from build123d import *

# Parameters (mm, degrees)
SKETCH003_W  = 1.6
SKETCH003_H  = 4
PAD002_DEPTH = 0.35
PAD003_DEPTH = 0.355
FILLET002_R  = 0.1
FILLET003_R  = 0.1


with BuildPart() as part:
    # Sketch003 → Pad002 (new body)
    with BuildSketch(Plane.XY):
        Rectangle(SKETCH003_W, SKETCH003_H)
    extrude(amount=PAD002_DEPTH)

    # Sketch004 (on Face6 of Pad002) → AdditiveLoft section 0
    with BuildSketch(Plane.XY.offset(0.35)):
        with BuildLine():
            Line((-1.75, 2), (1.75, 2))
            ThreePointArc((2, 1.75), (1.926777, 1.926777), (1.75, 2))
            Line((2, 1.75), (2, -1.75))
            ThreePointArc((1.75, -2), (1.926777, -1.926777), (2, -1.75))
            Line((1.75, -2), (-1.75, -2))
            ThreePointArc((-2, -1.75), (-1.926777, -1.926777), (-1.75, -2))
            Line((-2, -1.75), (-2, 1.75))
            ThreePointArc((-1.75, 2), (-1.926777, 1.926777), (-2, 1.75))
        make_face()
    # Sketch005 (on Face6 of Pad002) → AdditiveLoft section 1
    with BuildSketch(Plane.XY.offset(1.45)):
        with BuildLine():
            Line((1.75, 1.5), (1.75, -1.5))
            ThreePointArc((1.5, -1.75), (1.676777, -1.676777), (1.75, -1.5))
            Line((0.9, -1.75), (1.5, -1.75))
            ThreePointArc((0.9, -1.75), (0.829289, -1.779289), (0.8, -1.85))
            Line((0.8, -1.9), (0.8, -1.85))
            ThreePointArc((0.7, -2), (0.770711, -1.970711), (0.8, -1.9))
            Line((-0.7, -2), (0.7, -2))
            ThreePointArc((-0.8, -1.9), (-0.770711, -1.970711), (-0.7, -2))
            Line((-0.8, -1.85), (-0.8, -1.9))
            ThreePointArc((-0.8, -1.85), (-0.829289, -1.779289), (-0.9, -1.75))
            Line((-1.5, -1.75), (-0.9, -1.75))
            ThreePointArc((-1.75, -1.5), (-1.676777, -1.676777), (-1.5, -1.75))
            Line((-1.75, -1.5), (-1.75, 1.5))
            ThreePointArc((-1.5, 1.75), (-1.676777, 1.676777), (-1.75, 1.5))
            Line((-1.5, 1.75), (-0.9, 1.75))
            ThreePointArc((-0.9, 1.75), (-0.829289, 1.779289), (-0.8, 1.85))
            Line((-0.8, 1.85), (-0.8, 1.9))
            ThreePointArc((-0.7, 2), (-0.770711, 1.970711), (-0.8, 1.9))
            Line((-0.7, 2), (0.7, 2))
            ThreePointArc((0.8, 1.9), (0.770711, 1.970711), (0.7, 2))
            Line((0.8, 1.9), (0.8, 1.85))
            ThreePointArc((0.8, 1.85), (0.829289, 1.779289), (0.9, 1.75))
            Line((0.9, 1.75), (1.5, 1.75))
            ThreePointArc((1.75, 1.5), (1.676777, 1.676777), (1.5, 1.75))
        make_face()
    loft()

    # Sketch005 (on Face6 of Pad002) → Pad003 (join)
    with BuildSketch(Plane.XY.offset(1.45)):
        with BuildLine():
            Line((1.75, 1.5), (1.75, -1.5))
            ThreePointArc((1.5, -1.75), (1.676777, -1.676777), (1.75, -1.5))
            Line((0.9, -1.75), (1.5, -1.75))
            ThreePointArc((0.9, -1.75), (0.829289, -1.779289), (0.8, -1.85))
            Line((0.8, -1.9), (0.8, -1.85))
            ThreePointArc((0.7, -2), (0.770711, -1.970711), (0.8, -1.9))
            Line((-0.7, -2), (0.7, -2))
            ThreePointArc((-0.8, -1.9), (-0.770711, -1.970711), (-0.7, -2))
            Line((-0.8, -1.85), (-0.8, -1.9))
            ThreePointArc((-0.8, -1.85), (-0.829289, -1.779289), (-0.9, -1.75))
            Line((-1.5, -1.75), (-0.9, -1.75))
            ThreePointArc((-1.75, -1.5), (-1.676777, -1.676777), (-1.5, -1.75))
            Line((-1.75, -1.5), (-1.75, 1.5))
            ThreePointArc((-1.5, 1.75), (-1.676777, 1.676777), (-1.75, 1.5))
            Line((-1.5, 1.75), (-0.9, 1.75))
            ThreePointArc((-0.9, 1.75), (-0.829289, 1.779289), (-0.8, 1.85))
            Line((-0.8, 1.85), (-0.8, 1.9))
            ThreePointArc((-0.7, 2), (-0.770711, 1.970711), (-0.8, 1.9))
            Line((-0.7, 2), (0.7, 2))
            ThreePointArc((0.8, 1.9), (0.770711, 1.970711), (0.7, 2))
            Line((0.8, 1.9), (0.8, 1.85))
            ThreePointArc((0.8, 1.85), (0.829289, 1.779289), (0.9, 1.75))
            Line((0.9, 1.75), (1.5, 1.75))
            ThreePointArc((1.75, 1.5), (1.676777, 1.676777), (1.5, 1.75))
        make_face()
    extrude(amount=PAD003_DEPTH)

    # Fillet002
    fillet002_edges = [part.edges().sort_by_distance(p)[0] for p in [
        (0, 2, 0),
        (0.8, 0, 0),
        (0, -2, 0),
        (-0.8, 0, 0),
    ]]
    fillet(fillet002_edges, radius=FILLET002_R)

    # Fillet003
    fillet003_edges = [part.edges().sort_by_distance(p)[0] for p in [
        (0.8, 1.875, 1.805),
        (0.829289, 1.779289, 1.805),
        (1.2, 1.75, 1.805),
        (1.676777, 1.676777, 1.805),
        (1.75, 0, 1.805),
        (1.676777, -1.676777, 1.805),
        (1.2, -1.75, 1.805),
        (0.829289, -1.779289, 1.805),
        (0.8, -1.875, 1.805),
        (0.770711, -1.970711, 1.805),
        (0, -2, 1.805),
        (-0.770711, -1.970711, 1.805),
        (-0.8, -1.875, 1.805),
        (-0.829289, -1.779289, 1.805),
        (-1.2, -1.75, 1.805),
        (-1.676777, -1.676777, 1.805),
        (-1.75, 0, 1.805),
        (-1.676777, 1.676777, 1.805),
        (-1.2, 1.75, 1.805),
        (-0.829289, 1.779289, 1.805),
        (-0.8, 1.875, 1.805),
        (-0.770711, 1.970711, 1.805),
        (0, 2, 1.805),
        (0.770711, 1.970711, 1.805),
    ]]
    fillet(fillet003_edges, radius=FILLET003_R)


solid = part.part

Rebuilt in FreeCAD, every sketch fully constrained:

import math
import FreeCAD as App
import Part
import Sketcher

V = App.Vector
Q = App.Units.Quantity


def edges_at(feature, points):
    """Names of the edges that pass closest to the given points."""
    edges = feature.Shape.Edges
    near = lambda p: min(range(len(edges)), key=lambda i: edges[i].distToShape(Part.Vertex(*p))[0])
    return sorted({f"Edge{near(p) + 1}" for p in points})


def add_polygon(sketch, points):
    """Adds a closed chain of lines whose ends are joined by coincident constraints."""
    first, n = sketch.GeometryCount, len(points)
    for a, b in zip(points, points[1:] + points[:1]):
        sketch.addGeometry(Part.LineSegment(App.Vector(*a, 0), App.Vector(*b, 0)), False)
    for i in range(n):
        sketch.addConstraint(Sketcher.Constraint("Coincident", first + i, 2, first + (i + 1) % n, 1))

doc = App.newDocument("Part")
body = doc.addObject("PartDesign::Body", "Body")

sketch1 = body.newObject("Sketcher::SketchObject", "Sketch")
sketch1.AttachmentSupport = (doc.getObject("XY_Plane"), [""])
sketch1.MapMode = "FlatFace"
add_polygon(sketch1, [(-0.8, 2), (-0.8, -2), (0.8, -2), (0.8, 2)])
sketch1.addConstraint([
    Sketcher.Constraint("Vertical", 0),
    Sketcher.Constraint("Horizontal", 1),
    Sketcher.Constraint("Vertical", 2),
    Sketcher.Constraint("Horizontal", 3),
    Sketcher.Constraint("Symmetric", 0, 2, 2, 2, -1, 1),
    Sketcher.Constraint("DistanceY", 0, 2, 0, 1, Q("4 mm")),
    Sketcher.Constraint("DistanceX", 1, 1, 1, 2, Q("1.6 mm")),
])
pad1 = body.newObject("PartDesign::Pad", "Pad")
pad1.Profile = sketch1
pad1.Length = 0.35

sketch2 = body.newObject("Sketcher::SketchObject", "Sketch001")
sketch2.AttachmentSupport = (doc.getObject("XY_Plane"), [""])
sketch2.MapMode = "FlatFace"
sketch2.AttachmentOffset = App.Placement(V(0, 0, 0.35), App.Rotation())
sketch2.addGeometry([
    Part.LineSegment(V(1.75, 2, 0), V(-1.75, 2, 0)),
    Part.ArcOfCircle(Part.Circle(V(-1.75, 1.75, 0), V(0, 0, 1), 0.25), math.radians(90), math.radians(180)),
    Part.LineSegment(V(-2, 1.75, 0), V(-2, -1.75, 0)),
    Part.ArcOfCircle(Part.Circle(V(-1.75, -1.75, 0), V(0, 0, 1), 0.25), math.radians(180), math.radians(270)),
    Part.LineSegment(V(-1.75, -2, 0), V(1.75, -2, 0)),
    Part.ArcOfCircle(Part.Circle(V(1.75, -1.75, 0), V(0, 0, 1), 0.25), math.radians(-90), math.radians(0)),
    Part.LineSegment(V(2, -1.75, 0), V(2, 1.75, 0)),
    Part.ArcOfCircle(Part.Circle(V(1.75, 1.75, 0), V(0, 0, 1), 0.25), math.radians(0), math.radians(90)),
], False)
sketch2.addConstraint([
    Sketcher.Constraint("Coincident", 0, 2, 1, 1),
    Sketcher.Constraint("Coincident", 1, 2, 2, 1),
    Sketcher.Constraint("Coincident", 2, 2, 3, 1),
    Sketcher.Constraint("Coincident", 3, 2, 4, 1),
    Sketcher.Constraint("Coincident", 4, 2, 5, 1),
    Sketcher.Constraint("Coincident", 5, 2, 6, 1),
    Sketcher.Constraint("Coincident", 6, 2, 7, 1),
    Sketcher.Constraint("Coincident", 7, 2, 0, 1),
    Sketcher.Constraint("Horizontal", 0),
    Sketcher.Constraint("Vertical", 2),
    Sketcher.Constraint("Horizontal", 4),
    Sketcher.Constraint("Vertical", 6),
    Sketcher.Constraint("Equal", 1, 3),
    Sketcher.Constraint("Equal", 3, 5),
    Sketcher.Constraint("Equal", 5, 7),
    Sketcher.Constraint("Symmetric", 1, 3, 5, 3, -1, 1),
    Sketcher.Constraint("Horizontal", 7, 3, 1, 2),
    Sketcher.Constraint("Horizontal", 5, 3, 2, 2),
    Sketcher.Constraint("Horizontal", 2, 2, 5, 2),
    Sketcher.Constraint("Horizontal", 1, 2, 6, 2),
    Sketcher.Constraint("Vertical", 3, 3, 0, 2),
    Sketcher.Constraint("Vertical", 0, 2, 3, 2),
    Sketcher.Constraint("Vertical", 7, 3, 4, 2),
    Sketcher.Constraint("Vertical", 4, 2, 7, 2),
    Sketcher.Constraint("Equal", 4, 2),
    Sketcher.Constraint("Radius", 1, Q("0.249999 mm")),
    Sketcher.Constraint("DistanceX", 0, 2, 0, 1, Q("3.5 mm")),
])

sketch3 = body.newObject("Sketcher::SketchObject", "Sketch002")
sketch3.AttachmentSupport = (doc.getObject("XY_Plane"), [""])
sketch3.MapMode = "FlatFace"
sketch3.AttachmentOffset = App.Placement(V(0, 0, 1.45), App.Rotation())
sketch3.addGeometry([
    Part.LineSegment(V(1.75, -1.5, 0), V(1.75, 1.5, 0)),
    Part.ArcOfCircle(Part.Circle(V(1.5, 1.5, 0), V(0, 0, 1), 0.25), math.radians(0), math.radians(90)),
    Part.LineSegment(V(1.5, 1.75, 0), V(0.9, 1.75, 0)),
    Part.ArcOfCircle(Part.Circle(V(0.9, 1.85, 0), V(0, 0, 1), 0.1), math.radians(180), math.radians(270)),
    Part.LineSegment(V(0.8, 1.85, 0), V(0.8, 1.9, 0)),
    Part.ArcOfCircle(Part.Circle(V(0.7, 1.9, 0), V(0, 0, 1), 0.1), math.radians(0), math.radians(90)),
    Part.LineSegment(V(0.7, 2, 0), V(-0.7, 2, 0)),
    Part.ArcOfCircle(Part.Circle(V(-0.7, 1.9, 0), V(0, 0, 1), 0.1), math.radians(90), math.radians(180)),
    Part.LineSegment(V(-0.8, 1.9, 0), V(-0.8, 1.85, 0)),
    Part.ArcOfCircle(Part.Circle(V(-0.9, 1.85, 0), V(0, 0, 1), 0.1), math.radians(-90), math.radians(0)),
    Part.LineSegment(V(-0.9, 1.75, 0), V(-1.5, 1.75, 0)),
    Part.ArcOfCircle(Part.Circle(V(-1.5, 1.5, 0), V(0, 0, 1), 0.25), math.radians(90), math.radians(180)),
    Part.LineSegment(V(-1.75, 1.5, 0), V(-1.75, -1.5, 0)),
    Part.ArcOfCircle(Part.Circle(V(-1.5, -1.5, 0), V(0, 0, 1), 0.25), math.radians(180), math.radians(270)),
    Part.LineSegment(V(-1.5, -1.75, 0), V(-0.9, -1.75, 0)),
    Part.ArcOfCircle(Part.Circle(V(-0.9, -1.85, 0), V(0, 0, 1), 0.1), math.radians(0), math.radians(90)),
    Part.LineSegment(V(-0.8, -1.85, 0), V(-0.8, -1.9, 0)),
    Part.ArcOfCircle(Part.Circle(V(-0.7, -1.9, 0), V(0, 0, 1), 0.1), math.radians(180), math.radians(270)),
    Part.LineSegment(V(-0.7, -2, 0), V(0.7, -2, 0)),
    Part.ArcOfCircle(Part.Circle(V(0.7, -1.9, 0), V(0, 0, 1), 0.1), math.radians(-90), math.radians(0)),
    Part.LineSegment(V(0.8, -1.9, 0), V(0.8, -1.85, 0)),
    Part.ArcOfCircle(Part.Circle(V(0.9, -1.85, 0), V(0, 0, 1), 0.1), math.radians(90), math.radians(180)),
    Part.LineSegment(V(0.9, -1.75, 0), V(1.5, -1.75, 0)),
    Part.ArcOfCircle(Part.Circle(V(1.5, -1.5, 0), V(0, 0, 1), 0.25), math.radians(-90), math.radians(0)),
], False)
sketch3.addConstraint([
    Sketcher.Constraint("Coincident", 0, 2, 1, 1),
    Sketcher.Constraint("Coincident", 1, 2, 2, 1),
    Sketcher.Constraint("Coincident", 2, 2, 3, 2),
    Sketcher.Constraint("Coincident", 3, 1, 4, 1),
    Sketcher.Constraint("Coincident", 4, 2, 5, 1),
    Sketcher.Constraint("Coincident", 5, 2, 6, 1),
    Sketcher.Constraint("Coincident", 6, 2, 7, 1),
    Sketcher.Constraint("Coincident", 7, 2, 8, 1),
    Sketcher.Constraint("Coincident", 8, 2, 9, 2),
    Sketcher.Constraint("Coincident", 9, 1, 10, 1),
    Sketcher.Constraint("Coincident", 10, 2, 11, 1),
    Sketcher.Constraint("Coincident", 11, 2, 12, 1),
    Sketcher.Constraint("Coincident", 12, 2, 13, 1),
    Sketcher.Constraint("Coincident", 13, 2, 14, 1),
    Sketcher.Constraint("Coincident", 14, 2, 15, 2),
    Sketcher.Constraint("Coincident", 15, 1, 16, 1),
    Sketcher.Constraint("Coincident", 16, 2, 17, 1),
    Sketcher.Constraint("Coincident", 17, 2, 18, 1),
    Sketcher.Constraint("Coincident", 18, 2, 19, 1),
    Sketcher.Constraint("Coincident", 19, 2, 20, 1),
    Sketcher.Constraint("Coincident", 20, 2, 21, 2),
    Sketcher.Constraint("Coincident", 21, 1, 22, 1),
    Sketcher.Constraint("Coincident", 22, 2, 23, 1),
    Sketcher.Constraint("Coincident", 23, 2, 0, 1),
    Sketcher.Constraint("Vertical", 0),
    Sketcher.Constraint("Horizontal", 2),
    Sketcher.Constraint("Vertical", 4),
    Sketcher.Constraint("Horizontal", 6),
    Sketcher.Constraint("Vertical", 8),
    Sketcher.Constraint("Horizontal", 10),
    Sketcher.Constraint("Vertical", 12),
    Sketcher.Constraint("Horizontal", 14),
    Sketcher.Constraint("Vertical", 16),
    Sketcher.Constraint("Horizontal", 18),
    Sketcher.Constraint("Vertical", 20),
    Sketcher.Constraint("Horizontal", 22),
    Sketcher.Constraint("Equal", 3, 5),
    Sketcher.Constraint("Equal", 5, 7),
    Sketcher.Constraint("Equal", 7, 9),
    Sketcher.Constraint("Equal", 1, 11),
    Sketcher.Constraint("Equal", 11, 13),
    Sketcher.Constraint("Equal", 9, 15),
    Sketcher.Constraint("Equal", 15, 17),
    Sketcher.Constraint("Equal", 17, 19),
    Sketcher.Constraint("Equal", 19, 21),
    Sketcher.Constraint("Equal", 13, 23),
    Sketcher.Constraint("Symmetric", 1, 3, 13, 3, -1, 1),
    Sketcher.Constraint("Symmetric", 5, 3, 17, 3, -1, 1),
    Sketcher.Constraint("Symmetric", 9, 3, 21, 3, -1, 1),
    Sketcher.Constraint("Symmetric", 3, 3, 9, 3, -2),
    Sketcher.Constraint("Horizontal", 11, 3, 0, 2),
    Sketcher.Constraint("Horizontal", 9, 3, 3, 1),
    Sketcher.Constraint("Horizontal", 7, 3, 4, 2),
    Sketcher.Constraint("Horizontal", 4, 2, 7, 2),
    Sketcher.Constraint("Horizontal", 3, 1, 8, 2),
    Sketcher.Constraint("Horizontal", 0, 2, 11, 2),
    Sketcher.Constraint("Horizontal", 23, 3, 12, 2),
    Sketcher.Constraint("Horizontal", 21, 3, 15, 1),
    Sketcher.Constraint("Horizontal", 19, 3, 16, 2),
    Sketcher.Constraint("Horizontal", 16, 2, 19, 2),
    Sketcher.Constraint("Horizontal", 15, 1, 20, 2),
    Sketcher.Constraint("Horizontal", 12, 2, 23, 2),
    Sketcher.Constraint("Vertical", 23, 3, 1, 2),
    Sketcher.Constraint("Vertical", 21, 3, 2, 2),
    Sketcher.Constraint("Vertical", 19, 3, 5, 2),
    Sketcher.Constraint("Vertical", 17, 3, 6, 2),
    Sketcher.Constraint("Vertical", 15, 3, 9, 1),
    Sketcher.Constraint("Vertical", 13, 3, 10, 2),
    Sketcher.Constraint("Vertical", 10, 2, 13, 2),
    Sketcher.Constraint("Vertical", 9, 1, 14, 2),
    Sketcher.Constraint("Vertical", 6, 2, 17, 2),
    Sketcher.Constraint("Vertical", 5, 2, 18, 2),
    Sketcher.Constraint("Vertical", 2, 2, 21, 1),
    Sketcher.Constraint("Vertical", 1, 2, 22, 2),
    Sketcher.Constraint("Radius", 3, Q("0.099999 mm")),
    Sketcher.Constraint("DistanceY", 0, 1, 0, 2, Q("3 mm")),
    Sketcher.Constraint("Radius", 1, Q("0.249999 mm")),
    Sketcher.Constraint("DistanceX", 2, 2, 2, 1, Q("0.6 mm")),
    Sketcher.Constraint("DistanceX", 6, 2, 6, 1, Q("1.4 mm")),
    Sketcher.Constraint("DistanceY", -1, 1, 5, 2, Q("2 mm")),
])

additiveloft = body.newObject("PartDesign::AdditiveLoft", "AdditiveLoft")
additiveloft.Profile = sketch2
additiveloft.Sections = [sketch3]

sketch4 = body.newObject("Sketcher::SketchObject", "Sketch003")
sketch4.AttachmentSupport = (doc.getObject("XY_Plane"), [""])
sketch4.MapMode = "FlatFace"
sketch4.AttachmentOffset = App.Placement(V(0, 0, 1.45), App.Rotation())
sketch4.addGeometry([
    Part.LineSegment(V(1.75, -1.5, 0), V(1.75, 1.5, 0)),
    Part.ArcOfCircle(Part.Circle(V(1.5, 1.5, 0), V(0, 0, 1), 0.25), math.radians(0), math.radians(90)),
    Part.LineSegment(V(1.5, 1.75, 0), V(0.9, 1.75, 0)),
    Part.ArcOfCircle(Part.Circle(V(0.9, 1.85, 0), V(0, 0, 1), 0.1), math.radians(180), math.radians(270)),
    Part.LineSegment(V(0.8, 1.85, 0), V(0.8, 1.9, 0)),
    Part.ArcOfCircle(Part.Circle(V(0.7, 1.9, 0), V(0, 0, 1), 0.1), math.radians(0), math.radians(90)),
    Part.LineSegment(V(0.7, 2, 0), V(-0.7, 2, 0)),
    Part.ArcOfCircle(Part.Circle(V(-0.7, 1.9, 0), V(0, 0, 1), 0.1), math.radians(90), math.radians(180)),
    Part.LineSegment(V(-0.8, 1.9, 0), V(-0.8, 1.85, 0)),
    Part.ArcOfCircle(Part.Circle(V(-0.9, 1.85, 0), V(0, 0, 1), 0.1), math.radians(-90), math.radians(0)),
    Part.LineSegment(V(-0.9, 1.75, 0), V(-1.5, 1.75, 0)),
    Part.ArcOfCircle(Part.Circle(V(-1.5, 1.5, 0), V(0, 0, 1), 0.25), math.radians(90), math.radians(180)),
    Part.LineSegment(V(-1.75, 1.5, 0), V(-1.75, -1.5, 0)),
    Part.ArcOfCircle(Part.Circle(V(-1.5, -1.5, 0), V(0, 0, 1), 0.25), math.radians(180), math.radians(270)),
    Part.LineSegment(V(-1.5, -1.75, 0), V(-0.9, -1.75, 0)),
    Part.ArcOfCircle(Part.Circle(V(-0.9, -1.85, 0), V(0, 0, 1), 0.1), math.radians(0), math.radians(90)),
    Part.LineSegment(V(-0.8, -1.85, 0), V(-0.8, -1.9, 0)),
    Part.ArcOfCircle(Part.Circle(V(-0.7, -1.9, 0), V(0, 0, 1), 0.1), math.radians(180), math.radians(270)),
    Part.LineSegment(V(-0.7, -2, 0), V(0.7, -2, 0)),
    Part.ArcOfCircle(Part.Circle(V(0.7, -1.9, 0), V(0, 0, 1), 0.1), math.radians(-90), math.radians(0)),
    Part.LineSegment(V(0.8, -1.9, 0), V(0.8, -1.85, 0)),
    Part.ArcOfCircle(Part.Circle(V(0.9, -1.85, 0), V(0, 0, 1), 0.1), math.radians(90), math.radians(180)),
    Part.LineSegment(V(0.9, -1.75, 0), V(1.5, -1.75, 0)),
    Part.ArcOfCircle(Part.Circle(V(1.5, -1.5, 0), V(0, 0, 1), 0.25), math.radians(-90), math.radians(0)),
], False)
sketch4.addConstraint([
    Sketcher.Constraint("Coincident", 0, 2, 1, 1),
    Sketcher.Constraint("Coincident", 1, 2, 2, 1),
    Sketcher.Constraint("Coincident", 2, 2, 3, 2),
    Sketcher.Constraint("Coincident", 3, 1, 4, 1),
    Sketcher.Constraint("Coincident", 4, 2, 5, 1),
    Sketcher.Constraint("Coincident", 5, 2, 6, 1),
    Sketcher.Constraint("Coincident", 6, 2, 7, 1),
    Sketcher.Constraint("Coincident", 7, 2, 8, 1),
    Sketcher.Constraint("Coincident", 8, 2, 9, 2),
    Sketcher.Constraint("Coincident", 9, 1, 10, 1),
    Sketcher.Constraint("Coincident", 10, 2, 11, 1),
    Sketcher.Constraint("Coincident", 11, 2, 12, 1),
    Sketcher.Constraint("Coincident", 12, 2, 13, 1),
    Sketcher.Constraint("Coincident", 13, 2, 14, 1),
    Sketcher.Constraint("Coincident", 14, 2, 15, 2),
    Sketcher.Constraint("Coincident", 15, 1, 16, 1),
    Sketcher.Constraint("Coincident", 16, 2, 17, 1),
    Sketcher.Constraint("Coincident", 17, 2, 18, 1),
    Sketcher.Constraint("Coincident", 18, 2, 19, 1),
    Sketcher.Constraint("Coincident", 19, 2, 20, 1),
    Sketcher.Constraint("Coincident", 20, 2, 21, 2),
    Sketcher.Constraint("Coincident", 21, 1, 22, 1),
    Sketcher.Constraint("Coincident", 22, 2, 23, 1),
    Sketcher.Constraint("Coincident", 23, 2, 0, 1),
    Sketcher.Constraint("Vertical", 0),
    Sketcher.Constraint("Horizontal", 2),
    Sketcher.Constraint("Vertical", 4),
    Sketcher.Constraint("Horizontal", 6),
    Sketcher.Constraint("Vertical", 8),
    Sketcher.Constraint("Horizontal", 10),
    Sketcher.Constraint("Vertical", 12),
    Sketcher.Constraint("Horizontal", 14),
    Sketcher.Constraint("Vertical", 16),
    Sketcher.Constraint("Horizontal", 18),
    Sketcher.Constraint("Vertical", 20),
    Sketcher.Constraint("Horizontal", 22),
    Sketcher.Constraint("Equal", 3, 5),
    Sketcher.Constraint("Equal", 5, 7),
    Sketcher.Constraint("Equal", 7, 9),
    Sketcher.Constraint("Equal", 1, 11),
    Sketcher.Constraint("Equal", 11, 13),
    Sketcher.Constraint("Equal", 9, 15),
    Sketcher.Constraint("Equal", 15, 17),
    Sketcher.Constraint("Equal", 17, 19),
    Sketcher.Constraint("Equal", 19, 21),
    Sketcher.Constraint("Equal", 13, 23),
    Sketcher.Constraint("Symmetric", 1, 3, 13, 3, -1, 1),
    Sketcher.Constraint("Symmetric", 5, 3, 17, 3, -1, 1),
    Sketcher.Constraint("Symmetric", 9, 3, 21, 3, -1, 1),
    Sketcher.Constraint("Symmetric", 3, 3, 9, 3, -2),
    Sketcher.Constraint("Horizontal", 11, 3, 0, 2),
    Sketcher.Constraint("Horizontal", 9, 3, 3, 1),
    Sketcher.Constraint("Horizontal", 7, 3, 4, 2),
    Sketcher.Constraint("Horizontal", 4, 2, 7, 2),
    Sketcher.Constraint("Horizontal", 3, 1, 8, 2),
    Sketcher.Constraint("Horizontal", 0, 2, 11, 2),
    Sketcher.Constraint("Horizontal", 23, 3, 12, 2),
    Sketcher.Constraint("Horizontal", 21, 3, 15, 1),
    Sketcher.Constraint("Horizontal", 19, 3, 16, 2),
    Sketcher.Constraint("Horizontal", 16, 2, 19, 2),
    Sketcher.Constraint("Horizontal", 15, 1, 20, 2),
    Sketcher.Constraint("Horizontal", 12, 2, 23, 2),
    Sketcher.Constraint("Vertical", 23, 3, 1, 2),
    Sketcher.Constraint("Vertical", 21, 3, 2, 2),
    Sketcher.Constraint("Vertical", 19, 3, 5, 2),
    Sketcher.Constraint("Vertical", 17, 3, 6, 2),
    Sketcher.Constraint("Vertical", 15, 3, 9, 1),
    Sketcher.Constraint("Vertical", 13, 3, 10, 2),
    Sketcher.Constraint("Vertical", 10, 2, 13, 2),
    Sketcher.Constraint("Vertical", 9, 1, 14, 2),
    Sketcher.Constraint("Vertical", 6, 2, 17, 2),
    Sketcher.Constraint("Vertical", 5, 2, 18, 2),
    Sketcher.Constraint("Vertical", 2, 2, 21, 1),
    Sketcher.Constraint("Vertical", 1, 2, 22, 2),
    Sketcher.Constraint("Radius", 3, Q("0.099999 mm")),
    Sketcher.Constraint("DistanceY", 0, 1, 0, 2, Q("3 mm")),
    Sketcher.Constraint("Radius", 1, Q("0.249999 mm")),
    Sketcher.Constraint("DistanceX", 2, 2, 2, 1, Q("0.6 mm")),
    Sketcher.Constraint("DistanceX", 6, 2, 6, 1, Q("1.4 mm")),
    Sketcher.Constraint("DistanceY", -1, 1, 5, 2, Q("2 mm")),
])
pad2 = body.newObject("PartDesign::Pad", "Pad001")
pad2.Profile = sketch4
pad2.Length = 0.355
doc.recompute()

fillet = body.newObject("PartDesign::Fillet", "Fillet")
fillet.Base = (pad2, edges_at(pad2, [
    (0, 2, 0),
    (0.8, 0, 0),
    (0, -2, 0),
    (-0.8, 0, 0),
]))
fillet.Radius = 0.1
doc.recompute()

fillet2 = body.newObject("PartDesign::Fillet", "Fillet001")
fillet2.Base = (fillet, edges_at(fillet, [
    (0.8, 1.875, 1.805),
    (0.829, 1.779, 1.805),
    (1.2, 1.75, 1.805),
    (1.677, 1.677, 1.805),
    (1.75, 0, 1.805),
    (1.677, -1.677, 1.805),
    (1.2, -1.75, 1.805),
    (0.829, -1.779, 1.805),
    (0.8, -1.875, 1.805),
    (0.771, -1.971, 1.805),
    (0, -2, 1.805),
    (-0.771, -1.971, 1.805),
    (-0.8, -1.875, 1.805),
    (-0.829, -1.779, 1.805),
    (-1.2, -1.75, 1.805),
    (-1.677, -1.677, 1.805),
    (-1.75, 0, 1.805),
    (-1.677, 1.677, 1.805),
    (-1.2, 1.75, 1.805),
    (-0.829, 1.779, 1.805),
    (-0.8, 1.875, 1.805),
    (-0.771, 1.971, 1.805),
    (0, 2, 1.805),
    (0.771, 1.971, 1.805),
]))
fillet2.Radius = 0.1

doc.recompute()
